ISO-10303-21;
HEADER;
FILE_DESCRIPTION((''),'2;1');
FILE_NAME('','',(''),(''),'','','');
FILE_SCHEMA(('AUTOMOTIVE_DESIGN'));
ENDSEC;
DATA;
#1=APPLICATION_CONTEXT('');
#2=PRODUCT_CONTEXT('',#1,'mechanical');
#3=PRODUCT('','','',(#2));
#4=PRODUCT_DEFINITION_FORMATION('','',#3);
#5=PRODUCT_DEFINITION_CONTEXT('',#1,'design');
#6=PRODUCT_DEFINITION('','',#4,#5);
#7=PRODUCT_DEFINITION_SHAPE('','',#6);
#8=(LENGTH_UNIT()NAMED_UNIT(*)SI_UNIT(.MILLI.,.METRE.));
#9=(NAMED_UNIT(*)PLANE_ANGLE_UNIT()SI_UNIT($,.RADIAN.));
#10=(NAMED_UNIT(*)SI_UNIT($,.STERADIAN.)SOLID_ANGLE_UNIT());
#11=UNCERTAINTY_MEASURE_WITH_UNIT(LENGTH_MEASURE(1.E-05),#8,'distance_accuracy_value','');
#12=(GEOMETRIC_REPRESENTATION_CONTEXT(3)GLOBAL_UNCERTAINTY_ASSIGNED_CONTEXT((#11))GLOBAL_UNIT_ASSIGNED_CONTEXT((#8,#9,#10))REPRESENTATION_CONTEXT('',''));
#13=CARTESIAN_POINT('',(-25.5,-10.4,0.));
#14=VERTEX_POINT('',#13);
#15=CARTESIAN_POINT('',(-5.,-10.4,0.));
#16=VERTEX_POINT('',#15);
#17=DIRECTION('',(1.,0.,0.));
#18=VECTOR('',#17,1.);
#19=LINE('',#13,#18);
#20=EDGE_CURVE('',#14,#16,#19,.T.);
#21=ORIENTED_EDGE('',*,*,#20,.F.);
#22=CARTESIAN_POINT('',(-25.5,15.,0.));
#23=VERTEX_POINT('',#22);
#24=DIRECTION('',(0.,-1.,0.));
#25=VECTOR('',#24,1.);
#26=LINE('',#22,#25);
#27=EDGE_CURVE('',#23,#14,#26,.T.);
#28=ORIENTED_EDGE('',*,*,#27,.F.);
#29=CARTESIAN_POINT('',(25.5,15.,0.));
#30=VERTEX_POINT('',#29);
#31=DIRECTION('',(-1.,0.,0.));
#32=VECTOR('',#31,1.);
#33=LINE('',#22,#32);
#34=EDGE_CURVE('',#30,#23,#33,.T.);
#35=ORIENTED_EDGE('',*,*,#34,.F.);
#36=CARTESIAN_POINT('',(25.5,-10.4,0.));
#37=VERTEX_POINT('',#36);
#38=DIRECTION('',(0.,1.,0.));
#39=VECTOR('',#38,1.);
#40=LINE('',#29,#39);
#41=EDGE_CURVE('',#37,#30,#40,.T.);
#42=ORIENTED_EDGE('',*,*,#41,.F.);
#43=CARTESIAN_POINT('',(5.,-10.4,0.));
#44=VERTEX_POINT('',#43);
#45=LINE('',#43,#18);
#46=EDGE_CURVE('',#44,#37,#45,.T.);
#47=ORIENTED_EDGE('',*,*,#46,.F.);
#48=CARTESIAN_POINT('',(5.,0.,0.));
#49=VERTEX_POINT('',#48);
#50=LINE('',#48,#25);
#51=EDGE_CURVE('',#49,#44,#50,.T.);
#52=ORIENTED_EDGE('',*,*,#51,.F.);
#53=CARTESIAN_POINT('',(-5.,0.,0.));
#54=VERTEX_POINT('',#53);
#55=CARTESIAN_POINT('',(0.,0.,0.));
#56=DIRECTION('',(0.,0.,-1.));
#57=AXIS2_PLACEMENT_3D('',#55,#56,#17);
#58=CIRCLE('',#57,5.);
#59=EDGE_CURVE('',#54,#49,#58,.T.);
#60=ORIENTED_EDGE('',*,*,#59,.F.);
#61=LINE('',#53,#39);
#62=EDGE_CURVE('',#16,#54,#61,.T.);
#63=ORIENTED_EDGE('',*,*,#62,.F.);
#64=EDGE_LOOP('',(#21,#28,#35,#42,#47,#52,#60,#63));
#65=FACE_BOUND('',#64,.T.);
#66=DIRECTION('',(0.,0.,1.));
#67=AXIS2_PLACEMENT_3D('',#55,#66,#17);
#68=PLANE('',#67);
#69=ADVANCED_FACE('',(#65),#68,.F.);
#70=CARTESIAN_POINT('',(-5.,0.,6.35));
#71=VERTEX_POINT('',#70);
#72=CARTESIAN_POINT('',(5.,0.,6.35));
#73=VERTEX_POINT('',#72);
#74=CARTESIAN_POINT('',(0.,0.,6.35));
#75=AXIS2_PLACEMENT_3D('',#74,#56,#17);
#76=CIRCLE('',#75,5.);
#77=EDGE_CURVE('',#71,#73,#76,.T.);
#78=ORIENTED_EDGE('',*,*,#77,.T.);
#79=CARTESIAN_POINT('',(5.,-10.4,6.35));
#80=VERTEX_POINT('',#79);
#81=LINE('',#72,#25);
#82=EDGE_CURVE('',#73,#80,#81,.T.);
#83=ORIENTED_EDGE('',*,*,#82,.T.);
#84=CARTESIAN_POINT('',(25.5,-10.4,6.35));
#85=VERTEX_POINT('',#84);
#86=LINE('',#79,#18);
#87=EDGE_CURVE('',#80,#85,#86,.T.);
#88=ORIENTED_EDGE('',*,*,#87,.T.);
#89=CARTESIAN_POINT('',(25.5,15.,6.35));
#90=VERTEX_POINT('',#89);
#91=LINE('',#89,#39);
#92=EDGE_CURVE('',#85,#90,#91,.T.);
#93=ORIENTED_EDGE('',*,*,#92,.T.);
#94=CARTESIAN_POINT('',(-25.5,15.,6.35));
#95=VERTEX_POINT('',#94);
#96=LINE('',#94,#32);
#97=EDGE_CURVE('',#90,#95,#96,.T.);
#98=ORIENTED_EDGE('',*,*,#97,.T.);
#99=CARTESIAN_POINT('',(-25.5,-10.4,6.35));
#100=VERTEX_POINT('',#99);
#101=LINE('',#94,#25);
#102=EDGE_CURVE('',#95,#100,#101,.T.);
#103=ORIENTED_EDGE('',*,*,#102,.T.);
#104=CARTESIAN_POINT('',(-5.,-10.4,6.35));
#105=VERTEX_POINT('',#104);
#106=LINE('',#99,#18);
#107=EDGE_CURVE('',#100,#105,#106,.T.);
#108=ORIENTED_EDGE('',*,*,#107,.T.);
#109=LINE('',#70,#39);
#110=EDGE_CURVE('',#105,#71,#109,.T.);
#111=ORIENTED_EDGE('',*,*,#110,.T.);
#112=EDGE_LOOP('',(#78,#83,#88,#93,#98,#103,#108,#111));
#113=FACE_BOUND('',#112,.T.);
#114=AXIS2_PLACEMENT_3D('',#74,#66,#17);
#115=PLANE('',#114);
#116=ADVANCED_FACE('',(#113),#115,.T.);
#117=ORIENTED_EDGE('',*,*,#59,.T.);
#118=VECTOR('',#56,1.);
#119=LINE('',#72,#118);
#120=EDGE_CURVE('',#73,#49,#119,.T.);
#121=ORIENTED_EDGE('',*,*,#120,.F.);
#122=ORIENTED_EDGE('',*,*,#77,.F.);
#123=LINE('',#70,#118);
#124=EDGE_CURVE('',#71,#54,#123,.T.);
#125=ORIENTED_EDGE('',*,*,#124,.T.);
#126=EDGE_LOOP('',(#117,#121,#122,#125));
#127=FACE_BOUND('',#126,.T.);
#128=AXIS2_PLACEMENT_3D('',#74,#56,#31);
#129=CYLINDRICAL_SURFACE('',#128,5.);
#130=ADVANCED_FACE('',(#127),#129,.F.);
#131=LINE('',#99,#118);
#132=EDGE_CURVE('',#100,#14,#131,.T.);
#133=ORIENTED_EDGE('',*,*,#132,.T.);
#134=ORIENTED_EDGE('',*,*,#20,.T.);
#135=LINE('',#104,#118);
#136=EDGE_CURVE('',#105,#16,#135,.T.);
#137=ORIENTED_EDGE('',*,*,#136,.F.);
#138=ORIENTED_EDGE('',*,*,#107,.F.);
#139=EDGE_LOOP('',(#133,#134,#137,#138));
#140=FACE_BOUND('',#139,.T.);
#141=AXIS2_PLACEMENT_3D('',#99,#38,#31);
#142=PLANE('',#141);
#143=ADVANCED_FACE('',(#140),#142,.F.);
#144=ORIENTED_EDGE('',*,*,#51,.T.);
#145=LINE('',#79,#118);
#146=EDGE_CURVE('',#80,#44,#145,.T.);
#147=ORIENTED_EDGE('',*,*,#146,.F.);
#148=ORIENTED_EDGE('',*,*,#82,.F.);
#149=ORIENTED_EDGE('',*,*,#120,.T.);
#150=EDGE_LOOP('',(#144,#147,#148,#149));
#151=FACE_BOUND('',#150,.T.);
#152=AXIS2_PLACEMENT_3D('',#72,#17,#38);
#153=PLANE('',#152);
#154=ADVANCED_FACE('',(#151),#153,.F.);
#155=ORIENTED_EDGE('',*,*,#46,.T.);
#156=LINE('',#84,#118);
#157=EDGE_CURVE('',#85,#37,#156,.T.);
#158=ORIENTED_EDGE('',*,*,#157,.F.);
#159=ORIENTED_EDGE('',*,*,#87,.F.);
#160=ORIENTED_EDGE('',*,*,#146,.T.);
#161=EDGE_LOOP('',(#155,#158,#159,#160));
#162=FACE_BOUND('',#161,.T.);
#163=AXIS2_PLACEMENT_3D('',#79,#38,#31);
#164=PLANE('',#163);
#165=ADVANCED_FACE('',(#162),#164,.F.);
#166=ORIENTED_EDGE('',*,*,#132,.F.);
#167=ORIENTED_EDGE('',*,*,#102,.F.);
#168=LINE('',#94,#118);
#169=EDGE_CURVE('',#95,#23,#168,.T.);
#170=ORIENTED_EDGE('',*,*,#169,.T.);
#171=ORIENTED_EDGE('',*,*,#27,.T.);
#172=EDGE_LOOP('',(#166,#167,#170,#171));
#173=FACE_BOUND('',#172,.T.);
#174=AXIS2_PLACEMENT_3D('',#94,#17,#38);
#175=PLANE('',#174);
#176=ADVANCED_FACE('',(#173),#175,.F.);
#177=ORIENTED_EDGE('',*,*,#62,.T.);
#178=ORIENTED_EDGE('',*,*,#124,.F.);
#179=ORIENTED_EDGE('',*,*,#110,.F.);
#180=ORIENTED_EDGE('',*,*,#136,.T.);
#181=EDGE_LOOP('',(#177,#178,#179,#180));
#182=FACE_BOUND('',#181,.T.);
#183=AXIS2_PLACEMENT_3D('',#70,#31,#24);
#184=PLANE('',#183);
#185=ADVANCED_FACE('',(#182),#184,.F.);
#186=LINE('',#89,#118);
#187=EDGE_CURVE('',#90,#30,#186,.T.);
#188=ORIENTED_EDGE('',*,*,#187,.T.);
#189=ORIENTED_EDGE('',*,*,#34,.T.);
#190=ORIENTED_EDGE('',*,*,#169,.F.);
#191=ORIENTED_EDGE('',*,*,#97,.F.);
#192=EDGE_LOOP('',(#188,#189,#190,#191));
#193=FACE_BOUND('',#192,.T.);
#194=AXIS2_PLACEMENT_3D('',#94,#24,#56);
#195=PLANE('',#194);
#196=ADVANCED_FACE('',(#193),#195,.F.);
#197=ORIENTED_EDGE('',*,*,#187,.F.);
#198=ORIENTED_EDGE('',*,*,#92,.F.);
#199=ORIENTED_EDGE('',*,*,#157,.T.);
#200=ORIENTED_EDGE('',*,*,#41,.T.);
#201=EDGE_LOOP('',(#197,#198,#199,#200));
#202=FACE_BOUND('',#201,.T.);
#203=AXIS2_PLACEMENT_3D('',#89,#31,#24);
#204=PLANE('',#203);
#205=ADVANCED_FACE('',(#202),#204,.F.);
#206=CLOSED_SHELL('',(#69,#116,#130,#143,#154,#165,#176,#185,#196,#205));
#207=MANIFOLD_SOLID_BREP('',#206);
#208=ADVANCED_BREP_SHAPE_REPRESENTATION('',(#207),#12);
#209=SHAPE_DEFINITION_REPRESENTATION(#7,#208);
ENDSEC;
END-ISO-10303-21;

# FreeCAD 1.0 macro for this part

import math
import FreeCAD as App
import Part
import Sketcher
from FreeCAD import Vector

doc = App.newDocument("Part")
body = doc.addObject("PartDesign::Body", "Body")

# Sketch on XY plane
sketch1 = body.newObject("Sketcher::SketchObject", "Sketch")
sketch1.AttachmentSupport = (doc.getObject("XY_Plane"), [""])
sketch1.MapMode = "FlatFace"
sketch1.addGeometry([
    Part.LineSegment(Vector(-5, -10, 0), Vector(-5, 0, 0)),  # 0
    Part.ArcOfCircle(Part.Circle(Vector(0, 0, 0), Vector(0, 0, 1), 5), math.radians(0), math.radians(180)),  # 1
    Part.LineSegment(Vector(5, 0, 0), Vector(5, -10, 0)),  # 2
    Part.LineSegment(Vector(5, -10, 0), Vector(26, -10, 0)),  # 3
    Part.LineSegment(Vector(26, -10, 0), Vector(26, 15, 0)),  # 4
    Part.LineSegment(Vector(26, 15, 0), Vector(-26, 15, 0)),  # 5
    Part.LineSegment(Vector(-26, 15, 0), Vector(-26, -10, 0)),  # 6
    Part.LineSegment(Vector(-26, -10, 0), Vector(-5, -10, 0)),  # 7
], False)
sketch1.addConstraint([
    Sketcher.Constraint("Tangent", 0, 2, 1, 2),
    Sketcher.Constraint("Tangent", 1, 1, 2, 1),
    Sketcher.Constraint("Coincident", 2, 2, 3, 1),
    Sketcher.Constraint("Coincident", 3, 2, 4, 1),
    Sketcher.Constraint("Coincident", 4, 2, 5, 1),
    Sketcher.Constraint("Coincident", 5, 2, 6, 1),
    Sketcher.Constraint("Coincident", 6, 2, 7, 1),
    Sketcher.Constraint("Coincident", 7, 2, 0, 1),
    Sketcher.Constraint("Vertical", 0),
    Sketcher.Constraint("Vertical", 2),
    Sketcher.Constraint("Horizontal", 3),
    Sketcher.Constraint("Vertical", 4),
    Sketcher.Constraint("Horizontal", 5),
    Sketcher.Constraint("Vertical", 6),
    Sketcher.Constraint("Horizontal", 7),
    Sketcher.Constraint("Coincident", 1, 3, -1, 1),
    Sketcher.Constraint("Symmetric", 3, 2, 6, 2, -2),
    Sketcher.Constraint("Radius", 1, 5.0),
    Sketcher.Constraint("DistanceX", 5, 2, 5, 1, 51.0),
    Sketcher.Constraint("DistanceY", 0, 1, 0, 2, 10.4),
    Sketcher.Constraint("DistanceY", 4, 1, 4, 2, 25.4),
])
pad1 = body.newObject("PartDesign::Pad", "Pad")
pad1.Profile = sketch1
pad1.Length = 6.35

doc.recompute()
